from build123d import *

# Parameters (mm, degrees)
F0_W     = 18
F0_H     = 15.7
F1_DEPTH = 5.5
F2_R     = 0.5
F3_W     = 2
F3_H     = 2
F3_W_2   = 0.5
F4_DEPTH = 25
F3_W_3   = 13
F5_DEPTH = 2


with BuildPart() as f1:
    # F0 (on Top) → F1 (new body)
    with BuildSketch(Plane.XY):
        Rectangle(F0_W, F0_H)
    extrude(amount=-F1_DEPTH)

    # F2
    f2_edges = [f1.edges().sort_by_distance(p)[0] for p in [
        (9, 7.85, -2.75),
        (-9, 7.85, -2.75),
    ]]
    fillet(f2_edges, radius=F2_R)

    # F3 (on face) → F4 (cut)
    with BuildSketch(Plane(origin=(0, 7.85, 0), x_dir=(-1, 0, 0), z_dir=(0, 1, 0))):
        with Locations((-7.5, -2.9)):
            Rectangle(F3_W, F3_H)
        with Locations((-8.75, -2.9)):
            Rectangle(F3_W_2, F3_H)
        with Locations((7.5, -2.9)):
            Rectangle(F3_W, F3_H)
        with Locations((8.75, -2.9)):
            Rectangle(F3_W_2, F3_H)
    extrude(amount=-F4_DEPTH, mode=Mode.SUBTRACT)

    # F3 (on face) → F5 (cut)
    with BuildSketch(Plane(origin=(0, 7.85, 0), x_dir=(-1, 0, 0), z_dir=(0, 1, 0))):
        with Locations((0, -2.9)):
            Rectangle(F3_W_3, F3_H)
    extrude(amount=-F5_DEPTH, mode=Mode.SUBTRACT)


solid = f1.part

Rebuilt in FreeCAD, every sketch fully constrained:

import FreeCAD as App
import Part
import Sketcher
Q = App.Units.Quantity


def edges_at(feature, points):
    """Names of the edges that pass closest to the given points."""
    edges = feature.Shape.Edges
    near = lambda p: min(range(len(edges)), key=lambda i: edges[i].distToShape(Part.Vertex(*p))[0])
    return sorted({f"Edge{near(p) + 1}" for p in points})

doc = App.newDocument("Part")
body = doc.addObject("PartDesign::Body", "Body")

# Sketch on XY plane
sketch1 = body.newObject("Sketcher::SketchObject", "Sketch")
sketch1.AttachmentSupport = (doc.getObject("XY_Plane"), [""])
sketch1.MapMode = "FlatFace"
sketch1.addGeometry([
    Part.LineSegment(App.Vector(-9, 7.85, 0), App.Vector(-9, -7.85, 0)),
    Part.LineSegment(App.Vector(-9, -7.85, 0), App.Vector(9, -7.85, 0)),
    Part.LineSegment(App.Vector(9, -7.85, 0), App.Vector(9, 7.85, 0)),
    Part.LineSegment(App.Vector(9, 7.85, 0), App.Vector(-9, 7.85, 0)),
], False)
sketch1.addConstraint([
    Sketcher.Constraint("Coincident", 0, 2, 1, 1),
    Sketcher.Constraint("Coincident", 1, 2, 2, 1),
    Sketcher.Constraint("Coincident", 2, 2, 3, 1),
    Sketcher.Constraint("Coincident", 3, 2, 0, 1),
    Sketcher.Constraint("Vertical", 0),
    Sketcher.Constraint("Horizontal", 1),
    Sketcher.Constraint("Vertical", 2),
    Sketcher.Constraint("Horizontal", 3),
    Sketcher.Constraint("Symmetric", 0, 2, 2, 2, -1, 1),
    Sketcher.Constraint("DistanceX", 1, 1, 1, 2, Q("18 mm")),
    Sketcher.Constraint("DistanceY", 0, 2, 0, 1, Q("15.7 mm")),
])
pad1 = body.newObject("PartDesign::Pad", "Pad")
pad1.Profile = sketch1
pad1.Length = 5.5
pad1.Reversed = True
doc.recompute()

fillet = body.newObject("PartDesign::Fillet", "Fillet")
fillet.Base = (pad1, edges_at(pad1, [(9, 7.85, -2.75), (-9, 7.85, -2.75)]))
fillet.Radius = 0.5

# Sketch on XZ plane
sketch2 = body.newObject("Sketcher::SketchObject", "Sketch001")
sketch2.AttachmentSupport = (doc.getObject("XZ_Plane"), [""])
sketch2.MapMode = "FlatFace"
sketch2.AttachmentOffset = App.Placement(App.Vector(0, 0, -7.85), App.Rotation())
sketch2.addGeometry([
    Part.LineSegment(App.Vector(6.5, -3.9, 0), App.Vector(6.5, -1.9, 0)),  # 0
    Part.LineSegment(App.Vector(6.5, -1.9, 0), App.Vector(9, -1.9, 0)),  # 1
    Part.LineSegment(App.Vector(9, -1.9, 0), App.Vector(9, -3.9, 0)),  # 2
    Part.LineSegment(App.Vector(9, -3.9, 0), App.Vector(6.5, -3.9, 0)),  # 3
    Part.LineSegment(App.Vector(-6.5, -1.9, 0), App.Vector(-6.5, -3.9, 0)),  # 4
    Part.LineSegment(App.Vector(-6.5, -3.9, 0), App.Vector(-9, -3.9, 0)),  # 5
    Part.LineSegment(App.Vector(-9, -3.9, 0), App.Vector(-9, -1.9, 0)),  # 6
    Part.LineSegment(App.Vector(-9, -1.9, 0), App.Vector(-6.5, -1.9, 0)),  # 7
], False)
sketch2.addConstraint([
    Sketcher.Constraint("Coincident", 0, 2, 1, 1),
    Sketcher.Constraint("Coincident", 1, 2, 2, 1),
    Sketcher.Constraint("Coincident", 2, 2, 3, 1),
    Sketcher.Constraint("Coincident", 3, 2, 0, 1),
    Sketcher.Constraint("Coincident", 4, 2, 5, 1),
    Sketcher.Constraint("Coincident", 5, 2, 6, 1),
    Sketcher.Constraint("Coincident", 6, 2, 7, 1),
    Sketcher.Constraint("Coincident", 7, 2, 4, 1),
    Sketcher.Constraint("Vertical", 0),
    Sketcher.Constraint("Horizontal", 1),
    Sketcher.Constraint("Vertical", 2),
    Sketcher.Constraint("Horizontal", 3),
    Sketcher.Constraint("Vertical", 4),
    Sketcher.Constraint("Horizontal", 5),
    Sketcher.Constraint("Vertical", 6),
    Sketcher.Constraint("Horizontal", 7),
    Sketcher.Constraint("Symmetric", 3, 2, 4, 2, -2),
    Sketcher.Constraint("Symmetric", 1, 2, 6, 2, -2),
    Sketcher.Constraint("DistanceY", 0, 1, 0, 2, Q("2 mm")),
    Sketcher.Constraint("DistanceX", 1, 1, 1, 2, Q("2.5 mm")),
    Sketcher.Constraint("DistanceX", -1, 1, 1, 2, Q("9 mm")),
    Sketcher.Constraint("DistanceY", 0, 2, -1, 1, Q("1.9 mm")),
])
pocket1 = body.newObject("PartDesign::Pocket", "Pocket")
pocket1.Profile = sketch2
pocket1.Length = 25
pocket1.Reversed = True

# Sketch on XZ plane
sketch3 = body.newObject("Sketcher::SketchObject", "Sketch002")
sketch3.AttachmentSupport = (doc.getObject("XZ_Plane"), [""])
sketch3.MapMode = "FlatFace"
sketch3.AttachmentOffset = App.Placement(App.Vector(0, 0, -7.85), App.Rotation())
sketch3.addGeometry([
    Part.LineSegment(App.Vector(6.5, -1.9, 0), App.Vector(6.5, -3.9, 0)),
    Part.LineSegment(App.Vector(6.5, -3.9, 0), App.Vector(-6.5, -3.9, 0)),
    Part.LineSegment(App.Vector(-6.5, -3.9, 0), App.Vector(-6.5, -1.9, 0)),
    Part.LineSegment(App.Vector(-6.5, -1.9, 0), App.Vector(6.5, -1.9, 0)),
], False)
sketch3.addConstraint([
    Sketcher.Constraint("Coincident", 0, 2, 1, 1),
    Sketcher.Constraint("Coincident", 1, 2, 2, 1),
    Sketcher.Constraint("Coincident", 2, 2, 3, 1),
    Sketcher.Constraint("Coincident", 3, 2, 0, 1),
    Sketcher.Constraint("Vertical", 0),
    Sketcher.Constraint("Horizontal", 1),
    Sketcher.Constraint("Vertical", 2),
    Sketcher.Constraint("Horizontal", 3),
    Sketcher.Constraint("DistanceX", 1, 2, 1, 1, Q("13 mm")),
    Sketcher.Constraint("DistanceY", 0, 2, 0, 1, Q("2 mm")),
    Sketcher.Constraint("DistanceX", -1, 1, 0, 2, Q("6.5 mm")),
    Sketcher.Constraint("DistanceY", 0, 2, -1, 1, Q("3.9 mm")),
])
pocket2 = body.newObject("PartDesign::Pocket", "Pocket001")
pocket2.Profile = sketch3
pocket2.Length = 2
pocket2.Reversed = True

doc.recompute()
